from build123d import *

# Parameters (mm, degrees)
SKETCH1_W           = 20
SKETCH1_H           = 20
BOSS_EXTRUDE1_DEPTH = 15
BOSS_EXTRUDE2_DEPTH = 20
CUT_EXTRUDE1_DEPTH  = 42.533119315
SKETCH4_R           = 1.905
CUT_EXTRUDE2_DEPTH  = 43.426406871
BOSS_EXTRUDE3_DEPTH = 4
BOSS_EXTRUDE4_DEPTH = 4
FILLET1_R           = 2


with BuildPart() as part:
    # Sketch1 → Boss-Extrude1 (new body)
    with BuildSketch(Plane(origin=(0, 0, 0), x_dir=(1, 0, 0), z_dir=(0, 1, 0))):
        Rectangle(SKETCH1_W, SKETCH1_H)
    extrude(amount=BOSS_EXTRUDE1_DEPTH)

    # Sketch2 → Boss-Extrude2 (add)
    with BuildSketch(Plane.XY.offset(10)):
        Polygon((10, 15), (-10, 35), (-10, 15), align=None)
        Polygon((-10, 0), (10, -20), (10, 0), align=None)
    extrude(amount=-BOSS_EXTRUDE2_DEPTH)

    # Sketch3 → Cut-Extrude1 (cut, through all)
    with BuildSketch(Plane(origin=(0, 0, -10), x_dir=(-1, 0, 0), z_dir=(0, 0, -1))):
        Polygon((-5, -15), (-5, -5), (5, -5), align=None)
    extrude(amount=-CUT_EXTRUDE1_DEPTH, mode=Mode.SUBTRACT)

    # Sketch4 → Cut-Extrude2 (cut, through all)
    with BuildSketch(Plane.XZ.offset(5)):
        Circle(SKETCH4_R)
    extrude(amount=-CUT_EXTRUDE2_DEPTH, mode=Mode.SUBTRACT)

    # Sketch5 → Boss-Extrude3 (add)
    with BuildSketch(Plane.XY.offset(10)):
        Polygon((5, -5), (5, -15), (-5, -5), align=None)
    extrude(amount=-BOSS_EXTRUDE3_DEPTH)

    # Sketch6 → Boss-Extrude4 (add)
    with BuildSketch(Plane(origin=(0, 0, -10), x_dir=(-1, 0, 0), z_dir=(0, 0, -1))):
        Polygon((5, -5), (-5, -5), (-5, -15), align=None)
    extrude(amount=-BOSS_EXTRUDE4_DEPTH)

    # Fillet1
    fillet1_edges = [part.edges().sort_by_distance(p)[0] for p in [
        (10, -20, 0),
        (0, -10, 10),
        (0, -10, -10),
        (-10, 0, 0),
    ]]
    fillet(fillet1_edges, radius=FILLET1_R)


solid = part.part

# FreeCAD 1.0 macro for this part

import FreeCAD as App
import Part
import Sketcher
Q = App.Units.Quantity


def edges_at(feature, points):
    """Names of the edges that pass closest to the given points."""
    edges = feature.Shape.Edges
    near = lambda p: min(range(len(edges)), key=lambda i: edges[i].distToShape(Part.Vertex(*p))[0])
    return sorted({f"Edge{near(p) + 1}" for p in points})


def add_polygon(sketch, points):
    """Adds a closed chain of lines whose ends are joined by coincident constraints."""
    first, n = sketch.GeometryCount, len(points)
    for a, b in zip(points, points[1:] + points[:1]):
        sketch.addGeometry(Part.LineSegment(App.Vector(*a, 0), App.Vector(*b, 0)), False)
    for i in range(n):
        sketch.addConstraint(Sketcher.Constraint("Coincident", first + i, 2, first + (i + 1) % n, 1))

doc = App.newDocument("Part")
body = doc.addObject("PartDesign::Body", "Body")

sketch1 = doc.addObject("Sketcher::SketchObject", "Sketch")
body.addObject(sketch1)
sketch1.AttachmentSupport = (doc.XZ_Plane, [""])
sketch1.MapMode = "FlatFace"
add_polygon(sketch1, [(-10, -10), (-10, 10), (10, 10), (10, -10)])
sketch1.addConstraint(Sketcher.Constraint("Vertical", 0))
sketch1.addConstraint(Sketcher.Constraint("Horizontal", 1))
sketch1.addConstraint(Sketcher.Constraint("Vertical", 2))
sketch1.addConstraint(Sketcher.Constraint("Horizontal", 3))
sketch1.addConstraint(Sketcher.Constraint("Symmetric", 0, 2, 2, 2, -1, 1))
sketch1.addConstraint(Sketcher.Constraint("Equal", 3, 0))
sketch1.addConstraint(Sketcher.Constraint("DistanceX", 1, 1, 1, 2, Q("20 mm")))
pad1 = doc.addObject("PartDesign::Pad", "Pad")
body.addObject(pad1)
pad1.Profile = sketch1
pad1.Length = 15
pad1.Reversed = True

sketch2 = doc.addObject("Sketcher::SketchObject", "Sketch001")
body.addObject(sketch2)
sketch2.AttachmentSupport = (doc.XY_Plane, [""])
sketch2.MapMode = "FlatFace"
sketch2.AttachmentOffset = App.Placement(App.Vector(0, 0, 10), App.Rotation())
add_polygon(sketch2, [(10, 15), (-10, 35), (-10, 15)])
add_polygon(sketch2, [(-10, 0), (10, -20), (10, 0)])
sketch2.addConstraint(Sketcher.Constraint("Vertical", 1))
sketch2.addConstraint(Sketcher.Constraint("Horizontal", 2))
sketch2.addConstraint(Sketcher.Constraint("Vertical", 4))
sketch2.addConstraint(Sketcher.Constraint("Horizontal", 5))
sketch2.addConstraint(Sketcher.Constraint("Symmetric", 4, 2, 5, 2, -1, 1))
sketch2.addConstraint(Sketcher.Constraint("Parallel", 0, 3))
sketch2.addConstraint(Sketcher.Constraint("Vertical", 2, 2, 3, 2))
sketch2.addConstraint(Sketcher.Constraint("Vertical", 1, 2, 5, 2))
sketch2.addConstraint(Sketcher.Constraint("Equal", 5, 1))
sketch2.addConstraint(Sketcher.Constraint("DistanceX", 2, 1, 2, 2, Q("20 mm")))
sketch2.addConstraint(Sketcher.Constraint("DistanceY", -1, 1, 0, 2, Q("35 mm")))
pad2 = doc.addObject("PartDesign::Pad", "Pad001")
body.addObject(pad2)
pad2.Profile = sketch2
pad2.Length = 20
pad2.Reversed = True

sketch3 = doc.addObject("Sketcher::SketchObject", "Sketch002")
body.addObject(sketch3)
sketch3.AttachmentSupport = (doc.XY_Plane, [""])
sketch3.MapMode = "FlatFace"
sketch3.AttachmentOffset = App.Placement(App.Vector(0, 0, -10), App.Rotation())
add_polygon(sketch3, [(5, -5), (5, -15), (-5, -5)])
sketch3.addConstraint(Sketcher.Constraint("Vertical", 0))
sketch3.addConstraint(Sketcher.Constraint("Horizontal", 2))
sketch3.addConstraint(Sketcher.Constraint("Equal", 2, 0))
sketch3.addConstraint(Sketcher.Constraint("DistanceX", 2, 1, 2, 2, Q("10 mm")))
sketch3.addConstraint(Sketcher.Constraint("DistanceX", -1, 1, 0, 2, Q("5 mm")))
sketch3.addConstraint(Sketcher.Constraint("DistanceY", 0, 2, -1, 1, Q("15 mm")))
pocket1 = doc.addObject("PartDesign::Pocket", "Pocket")
body.addObject(pocket1)
pocket1.Profile = sketch3
pocket1.Type = "ThroughAll"
pocket1.Reversed = True

sketch4 = doc.addObject("Sketcher::SketchObject", "Sketch003")
body.addObject(sketch4)
sketch4.AttachmentSupport = (doc.XZ_Plane, [""])
sketch4.MapMode = "FlatFace"
sketch4.AttachmentOffset = App.Placement(App.Vector(0, 0, 5), App.Rotation())
sketch4.addGeometry(Part.Circle(App.Vector(0, 0, 0), App.Vector(0, 0, 1), 1.9), False)
sketch4.addConstraint(Sketcher.Constraint("Coincident", 0, 3, -1, 1))
sketch4.addConstraint(Sketcher.Constraint("Diameter", 0, Q("3.81 mm")))
pocket2 = doc.addObject("PartDesign::Pocket", "Pocket001")
body.addObject(pocket2)
pocket2.Profile = sketch4
pocket2.Type = "ThroughAll"

sketch5 = doc.addObject("Sketcher::SketchObject", "Sketch004")
body.addObject(sketch5)
sketch5.AttachmentSupport = (doc.XY_Plane, [""])
sketch5.MapMode = "FlatFace"
sketch5.AttachmentOffset = App.Placement(App.Vector(0, 0, 10), App.Rotation())
add_polygon(sketch5, [(5, -15), (5, -5), (-5, -5)])
sketch5.addConstraint(Sketcher.Constraint("Vertical", 0))
sketch5.addConstraint(Sketcher.Constraint("Horizontal", 1))
sketch5.addConstraint(Sketcher.Constraint("Equal", 1, 0))
sketch5.addConstraint(Sketcher.Constraint("DistanceX", 1, 2, 1, 1, Q("10 mm")))
sketch5.addConstraint(Sketcher.Constraint("DistanceX", -1, 1, 0, 2, Q("5 mm")))
sketch5.addConstraint(Sketcher.Constraint("DistanceY", 0, 2, -1, 1, Q("5 mm")))
pad3 = doc.addObject("PartDesign::Pad", "Pad002")
body.addObject(pad3)
pad3.Profile = sketch5
pad3.Length = 4
pad3.Reversed = True

sketch6 = doc.addObject("Sketcher::SketchObject", "Sketch005")
body.addObject(sketch6)
sketch6.AttachmentSupport = (doc.XY_Plane, [""])
sketch6.MapMode = "FlatFace"
sketch6.AttachmentOffset = App.Placement(App.Vector(0, 0, -10), App.Rotation())
add_polygon(sketch6, [(-5, -5), (5, -5), (5, -15)])
sketch6.addConstraint(Sketcher.Constraint("Horizontal", 0))
sketch6.addConstraint(Sketcher.Constraint("Vertical", 1))
sketch6.addConstraint(Sketcher.Constraint("Equal", 0, 1))
sketch6.addConstraint(Sketcher.Constraint("DistanceX", 0, 1, 0, 2, Q("10 mm")))
sketch6.addConstraint(Sketcher.Constraint("DistanceX", -1, 1, 0, 2, Q("5 mm")))
sketch6.addConstraint(Sketcher.Constraint("DistanceY", 0, 2, -1, 1, Q("5 mm")))
pad4 = doc.addObject("PartDesign::Pad", "Pad003")
body.addObject(pad4)
pad4.Profile = sketch6
pad4.Length = 4
doc.recompute()

fillet = doc.addObject("PartDesign::Fillet", "Fillet")
body.addObject(fillet)
fillet.Base = (pad4, edges_at(pad4, [
    (10, -20, 0),
    (0, -10, 10),
    (0, -10, -10),
    (-10, 0, 0),
]))
fillet.Radius = 2

doc.recompute()
